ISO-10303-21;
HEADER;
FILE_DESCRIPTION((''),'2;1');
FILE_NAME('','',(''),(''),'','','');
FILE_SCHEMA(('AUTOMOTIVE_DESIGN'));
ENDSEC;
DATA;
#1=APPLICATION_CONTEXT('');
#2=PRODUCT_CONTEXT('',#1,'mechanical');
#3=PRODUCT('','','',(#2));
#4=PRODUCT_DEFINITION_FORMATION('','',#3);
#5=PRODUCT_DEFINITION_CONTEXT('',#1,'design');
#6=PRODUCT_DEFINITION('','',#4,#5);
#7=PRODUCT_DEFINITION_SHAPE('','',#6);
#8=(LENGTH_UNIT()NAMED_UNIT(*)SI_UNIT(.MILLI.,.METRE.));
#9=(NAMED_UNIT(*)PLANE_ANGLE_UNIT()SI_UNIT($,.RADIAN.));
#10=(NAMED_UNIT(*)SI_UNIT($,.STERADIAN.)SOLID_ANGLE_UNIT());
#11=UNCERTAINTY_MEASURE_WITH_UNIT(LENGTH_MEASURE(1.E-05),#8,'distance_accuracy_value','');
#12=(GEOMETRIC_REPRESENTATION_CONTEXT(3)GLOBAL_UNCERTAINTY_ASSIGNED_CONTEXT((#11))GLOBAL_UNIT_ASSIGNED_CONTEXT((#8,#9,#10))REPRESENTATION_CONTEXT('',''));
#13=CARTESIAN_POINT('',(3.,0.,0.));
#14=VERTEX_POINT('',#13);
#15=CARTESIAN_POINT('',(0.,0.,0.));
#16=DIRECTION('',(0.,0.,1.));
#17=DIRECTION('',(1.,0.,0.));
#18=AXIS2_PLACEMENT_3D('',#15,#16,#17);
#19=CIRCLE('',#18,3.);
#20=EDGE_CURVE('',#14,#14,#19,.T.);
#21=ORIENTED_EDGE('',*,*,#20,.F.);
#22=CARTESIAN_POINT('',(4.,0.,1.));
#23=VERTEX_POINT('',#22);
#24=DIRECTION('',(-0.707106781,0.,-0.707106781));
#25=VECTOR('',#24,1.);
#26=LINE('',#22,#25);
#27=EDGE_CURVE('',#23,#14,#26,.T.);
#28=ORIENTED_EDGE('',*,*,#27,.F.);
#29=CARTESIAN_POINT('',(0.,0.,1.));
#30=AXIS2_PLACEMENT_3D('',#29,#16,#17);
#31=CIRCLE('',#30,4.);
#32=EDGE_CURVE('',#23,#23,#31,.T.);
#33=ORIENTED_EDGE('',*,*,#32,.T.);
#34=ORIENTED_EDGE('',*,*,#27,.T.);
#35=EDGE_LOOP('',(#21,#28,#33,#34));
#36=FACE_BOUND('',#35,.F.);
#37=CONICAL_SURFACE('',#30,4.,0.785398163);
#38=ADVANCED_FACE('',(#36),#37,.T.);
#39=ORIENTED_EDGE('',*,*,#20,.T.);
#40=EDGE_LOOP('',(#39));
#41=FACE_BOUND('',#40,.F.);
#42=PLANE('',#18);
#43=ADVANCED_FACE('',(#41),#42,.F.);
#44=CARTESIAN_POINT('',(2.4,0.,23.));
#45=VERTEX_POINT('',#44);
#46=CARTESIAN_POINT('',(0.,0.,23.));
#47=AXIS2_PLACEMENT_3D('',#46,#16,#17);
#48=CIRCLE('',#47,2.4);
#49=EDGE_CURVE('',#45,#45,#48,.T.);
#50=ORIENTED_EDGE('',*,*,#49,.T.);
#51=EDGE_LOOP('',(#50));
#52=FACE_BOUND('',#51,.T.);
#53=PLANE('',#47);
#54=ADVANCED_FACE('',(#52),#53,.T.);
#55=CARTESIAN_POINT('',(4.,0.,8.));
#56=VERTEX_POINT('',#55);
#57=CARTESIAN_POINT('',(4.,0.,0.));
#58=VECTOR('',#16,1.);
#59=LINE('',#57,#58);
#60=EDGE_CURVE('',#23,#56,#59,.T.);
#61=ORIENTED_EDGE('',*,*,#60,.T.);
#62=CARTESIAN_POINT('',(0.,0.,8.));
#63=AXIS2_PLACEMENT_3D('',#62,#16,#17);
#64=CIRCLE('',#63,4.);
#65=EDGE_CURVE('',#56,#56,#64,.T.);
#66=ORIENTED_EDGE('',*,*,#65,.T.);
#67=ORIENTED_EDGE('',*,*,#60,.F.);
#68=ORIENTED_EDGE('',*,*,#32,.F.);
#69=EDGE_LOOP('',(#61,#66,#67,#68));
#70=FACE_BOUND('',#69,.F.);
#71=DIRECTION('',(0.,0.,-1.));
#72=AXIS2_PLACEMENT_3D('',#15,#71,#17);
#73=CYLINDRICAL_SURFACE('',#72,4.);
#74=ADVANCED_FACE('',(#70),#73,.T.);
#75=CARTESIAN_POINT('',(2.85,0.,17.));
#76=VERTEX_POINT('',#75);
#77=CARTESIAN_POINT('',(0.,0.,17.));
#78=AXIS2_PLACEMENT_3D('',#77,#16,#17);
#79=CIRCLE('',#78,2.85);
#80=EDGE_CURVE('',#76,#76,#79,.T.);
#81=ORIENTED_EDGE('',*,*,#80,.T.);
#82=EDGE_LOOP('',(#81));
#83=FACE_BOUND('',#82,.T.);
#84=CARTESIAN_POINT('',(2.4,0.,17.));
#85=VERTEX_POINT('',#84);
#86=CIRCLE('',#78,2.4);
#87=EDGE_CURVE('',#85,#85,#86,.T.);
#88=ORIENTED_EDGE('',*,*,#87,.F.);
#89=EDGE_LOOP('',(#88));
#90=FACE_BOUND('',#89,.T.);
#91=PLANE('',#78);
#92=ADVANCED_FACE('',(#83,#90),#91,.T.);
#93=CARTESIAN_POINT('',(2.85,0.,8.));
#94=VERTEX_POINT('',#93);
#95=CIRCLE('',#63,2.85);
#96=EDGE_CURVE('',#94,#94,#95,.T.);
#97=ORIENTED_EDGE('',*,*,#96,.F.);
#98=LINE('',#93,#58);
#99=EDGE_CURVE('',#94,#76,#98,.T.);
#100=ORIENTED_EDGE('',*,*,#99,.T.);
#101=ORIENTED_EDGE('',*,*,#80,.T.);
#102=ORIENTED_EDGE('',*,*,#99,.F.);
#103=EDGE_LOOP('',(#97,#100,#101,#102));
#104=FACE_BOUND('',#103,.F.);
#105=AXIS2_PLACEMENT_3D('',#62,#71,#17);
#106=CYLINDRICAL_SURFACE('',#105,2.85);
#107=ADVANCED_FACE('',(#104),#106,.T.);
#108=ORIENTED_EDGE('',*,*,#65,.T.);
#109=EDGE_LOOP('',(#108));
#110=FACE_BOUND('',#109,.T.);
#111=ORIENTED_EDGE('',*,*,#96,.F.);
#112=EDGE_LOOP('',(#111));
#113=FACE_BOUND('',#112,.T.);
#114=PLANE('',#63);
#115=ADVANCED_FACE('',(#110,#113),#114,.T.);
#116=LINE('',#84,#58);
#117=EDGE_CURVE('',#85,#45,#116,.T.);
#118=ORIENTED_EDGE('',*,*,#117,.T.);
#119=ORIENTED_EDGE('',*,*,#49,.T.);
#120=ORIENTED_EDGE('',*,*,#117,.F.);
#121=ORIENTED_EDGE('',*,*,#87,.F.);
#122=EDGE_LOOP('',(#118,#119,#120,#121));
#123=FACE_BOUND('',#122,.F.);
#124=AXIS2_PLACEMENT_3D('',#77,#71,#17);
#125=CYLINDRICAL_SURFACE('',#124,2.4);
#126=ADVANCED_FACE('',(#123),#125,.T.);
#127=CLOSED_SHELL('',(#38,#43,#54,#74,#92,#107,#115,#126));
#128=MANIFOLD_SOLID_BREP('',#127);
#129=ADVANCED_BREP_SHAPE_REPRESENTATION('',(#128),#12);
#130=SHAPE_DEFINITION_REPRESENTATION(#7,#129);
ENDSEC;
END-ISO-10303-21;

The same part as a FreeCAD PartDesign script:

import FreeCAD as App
import Part
import Sketcher
Q = App.Units.Quantity


def edges_at(feature, points):
    """Names of the edges that pass closest to the given points."""
    edges = feature.Shape.Edges
    near = lambda p: min(range(len(edges)), key=lambda i: edges[i].distToShape(Part.Vertex(*p))[0])
    return sorted({f"Edge{near(p) + 1}" for p in points})

doc = App.newDocument("Part")
body = doc.addObject("PartDesign::Body", "Body")

# Sketch on XY plane
sketch1 = body.newObject("Sketcher::SketchObject", "Sketch")
sketch1.AttachmentSupport = (doc.getObject("XY_Plane"), [""])
sketch1.MapMode = "FlatFace"
sketch1.addGeometry(Part.Circle(App.Vector(0, 0, 0), App.Vector(0, 0, 1), 4), False)
sketch1.addConstraint(Sketcher.Constraint("Coincident", 0, 3, -1, 1))
sketch1.addConstraint(Sketcher.Constraint("Diameter", 0, Q("8 mm")))
pad1 = body.newObject("PartDesign::Pad", "Pad")
pad1.Profile = sketch1
pad1.Length = 8

# Sketch on XY plane
sketch2 = body.newObject("Sketcher::SketchObject", "Sketch001")
sketch2.AttachmentSupport = (doc.getObject("XY_Plane"), [""])
sketch2.MapMode = "FlatFace"
sketch2.AttachmentOffset = App.Placement(App.Vector(0, 0, 8), App.Rotation())
sketch2.addGeometry(Part.Circle(App.Vector(0, 0, 0), App.Vector(0, 0, 1), 2.85), False)
sketch2.addConstraint(Sketcher.Constraint("Coincident", 0, 3, -1, 1))
sketch2.addConstraint(Sketcher.Constraint("Diameter", 0, Q("5.7 mm")))
pad2 = body.newObject("PartDesign::Pad", "Pad001")
pad2.Profile = sketch2
pad2.Length = 9

# Sketch on XY plane
sketch3 = body.newObject("Sketcher::SketchObject", "Sketch002")
sketch3.AttachmentSupport = (doc.getObject("XY_Plane"), [""])
sketch3.MapMode = "FlatFace"
sketch3.AttachmentOffset = App.Placement(App.Vector(0, 0, 17), App.Rotation())
sketch3.addGeometry(Part.Circle(App.Vector(0, 0, 0), App.Vector(0, 0, 1), 2.4), False)
sketch3.addConstraint(Sketcher.Constraint("Coincident", 0, 3, -1, 1))
sketch3.addConstraint(Sketcher.Constraint("Diameter", 0, Q("4.8 mm")))
pad3 = body.newObject("PartDesign::Pad", "Pad002")
pad3.Profile = sketch3
pad3.Length = 6
doc.recompute()

chamfer = body.newObject("PartDesign::Chamfer", "Chamfer")
chamfer.Base = (pad3, edges_at(pad3, [(-4, 0, 0)]))
chamfer.Size = 1

doc.recompute()
